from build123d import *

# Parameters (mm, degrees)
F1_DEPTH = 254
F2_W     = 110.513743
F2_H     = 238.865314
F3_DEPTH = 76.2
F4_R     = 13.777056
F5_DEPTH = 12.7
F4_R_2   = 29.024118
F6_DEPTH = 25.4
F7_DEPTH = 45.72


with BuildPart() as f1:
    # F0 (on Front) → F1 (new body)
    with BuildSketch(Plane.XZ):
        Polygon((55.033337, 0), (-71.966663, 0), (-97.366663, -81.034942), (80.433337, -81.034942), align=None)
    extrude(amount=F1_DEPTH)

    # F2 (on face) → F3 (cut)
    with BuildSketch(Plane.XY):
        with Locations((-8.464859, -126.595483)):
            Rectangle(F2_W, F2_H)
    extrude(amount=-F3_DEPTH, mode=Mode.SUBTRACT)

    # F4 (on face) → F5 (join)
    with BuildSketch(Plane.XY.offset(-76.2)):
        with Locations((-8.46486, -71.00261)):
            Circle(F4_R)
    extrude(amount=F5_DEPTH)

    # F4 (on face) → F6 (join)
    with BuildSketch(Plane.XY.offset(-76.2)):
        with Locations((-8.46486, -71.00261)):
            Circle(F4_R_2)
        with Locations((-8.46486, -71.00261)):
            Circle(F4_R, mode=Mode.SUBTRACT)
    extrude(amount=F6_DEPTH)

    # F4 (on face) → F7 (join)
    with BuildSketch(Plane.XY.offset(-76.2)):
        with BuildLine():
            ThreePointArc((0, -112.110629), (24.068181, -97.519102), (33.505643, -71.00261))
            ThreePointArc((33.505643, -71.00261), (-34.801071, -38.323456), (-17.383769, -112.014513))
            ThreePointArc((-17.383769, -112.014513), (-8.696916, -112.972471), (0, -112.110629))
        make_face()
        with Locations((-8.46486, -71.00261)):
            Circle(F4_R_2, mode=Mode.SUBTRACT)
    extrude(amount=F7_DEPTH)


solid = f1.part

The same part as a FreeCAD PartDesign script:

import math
import FreeCAD as App
import Part
import Sketcher
from FreeCAD import Vector
Q = App.Units.Quantity

doc = App.newDocument("Part")
params = doc.addObject("Spreadsheet::Sheet", "Params")
for row, (alias, value) in enumerate([
    ("sketch1_width", "5 in"),
    ("sketch1_width2", "7 in"),
    ("pad1_length", "10 in"),
    ("pocket1_length", "3 in"),
    ("pad2_length", "0.5 in"),
    ("pad3_length", "1 in"),
    ("pad4_length", "1.8 in"),
], start=1):
    params.set(f"A{row}", alias)
    params.set(f"B{row}", "=" + value)
    params.setAlias(f"B{row}", alias)

body = doc.addObject("PartDesign::Body", "Body")

# Sketch on XZ plane
sketch1 = body.newObject("Sketcher::SketchObject", "Sketch")
sketch1.AttachmentSupport = (doc.getObject("XZ_Plane"), [""])
sketch1.MapMode = "FlatFace"
sketch1.addGeometry([
    Part.LineSegment(Vector(55, 0, 0), Vector(-72, 0, 0)),
    Part.LineSegment(Vector(-72, 0, 0), Vector(-97, -81, 0)),
    Part.LineSegment(Vector(-97, -81, 0), Vector(80, -81, 0)),
    Part.LineSegment(Vector(80, -81, 0), Vector(55, 0, 0)),
], False)
sketch1.addConstraint([
    Sketcher.Constraint("Coincident", 0, 2, 1, 1),
    Sketcher.Constraint("Coincident", 1, 2, 2, 1),
    Sketcher.Constraint("Coincident", 2, 2, 3, 1),
    Sketcher.Constraint("Coincident", 3, 2, 0, 1),
    Sketcher.Constraint("Horizontal", 0),
    Sketcher.Constraint("Horizontal", 2),
    Sketcher.Constraint("PointOnObject", 0, 2, -1),
    Sketcher.Constraint("Equal", 1, 3),
    Sketcher.Constraint("DistanceX", 0, 2, 0, 1, Q("5 in")),
    Sketcher.Constraint("DistanceX", 2, 1, 2, 2, Q("7 in")),
    Sketcher.Constraint("DistanceY", 1, 2, -1, 1, 81.034942),
    Sketcher.Constraint("DistanceX", 0, 2, -1, 1, 71.966663),
])
sketch1.setExpression("Constraints[8]", "Params.sketch1_width")
sketch1.setExpression("Constraints[9]", "Params.sketch1_width2")
pad1 = body.newObject("PartDesign::Pad", "Pad")
pad1.Profile = sketch1
pad1.setExpression("Length", "Params.pad1_length")

# Sketch on XY plane
sketch2 = body.newObject("Sketcher::SketchObject", "Sketch001")
sketch2.AttachmentSupport = (doc.getObject("XY_Plane"), [""])
sketch2.MapMode = "FlatFace"
sketch2.addGeometry([
    Part.LineSegment(Vector(-64, -7, 0), Vector(-64, -246, 0)),
    Part.LineSegment(Vector(-64, -246, 0), Vector(47, -246, 0)),
    Part.LineSegment(Vector(47, -246, 0), Vector(47, -7, 0)),
    Part.LineSegment(Vector(47, -7, 0), Vector(-64, -7, 0)),
], False)
sketch2.addConstraint([
    Sketcher.Constraint("Coincident", 0, 2, 1, 1),
    Sketcher.Constraint("Coincident", 1, 2, 2, 1),
    Sketcher.Constraint("Coincident", 2, 2, 3, 1),
    Sketcher.Constraint("Coincident", 3, 2, 0, 1),
    Sketcher.Constraint("Vertical", 0),
    Sketcher.Constraint("Horizontal", 1),
    Sketcher.Constraint("Vertical", 2),
    Sketcher.Constraint("Horizontal", 3),
    Sketcher.Constraint("DistanceX", 1, 1, 1, 2, 110.513743),
    Sketcher.Constraint("DistanceY", 0, 2, 0, 1, 238.865314),
    Sketcher.Constraint("DistanceX", 0, 2, -1, 1, 63.72173),
    Sketcher.Constraint("DistanceY", 0, 2, -1, 1, 246.02814),
])
pocket1 = body.newObject("PartDesign::Pocket", "Pocket")
pocket1.Profile = sketch2
pocket1.setExpression("Length", "Params.pocket1_length")

# Sketch on XY plane
sketch3 = body.newObject("Sketcher::SketchObject", "Sketch002")
sketch3.AttachmentSupport = (doc.getObject("XY_Plane"), [""])
sketch3.MapMode = "FlatFace"
sketch3.AttachmentOffset = App.Placement(Vector(0, 0, -3 * 25.4), App.Rotation())
sketch3.addGeometry(Part.Circle(Vector(-8, -71, 0), Vector(0, 0, 1), 14), False)
sketch3.addConstraint([
    Sketcher.Constraint("Diameter", 0, 27.554112),
    Sketcher.Constraint("DistanceX", 0, 3, -1, 1, 8.46486),
    Sketcher.Constraint("DistanceY", 0, 3, -1, 1, 71.00261),
])
pad2 = body.newObject("PartDesign::Pad", "Pad001")
pad2.Profile = sketch3
pad2.setExpression("Length", "Params.pad2_length")

# Sketch on XY plane
sketch4 = body.newObject("Sketcher::SketchObject", "Sketch003")
sketch4.AttachmentSupport = (doc.getObject("XY_Plane"), [""])
sketch4.MapMode = "FlatFace"
sketch4.AttachmentOffset = App.Placement(Vector(0, 0, -3 * 25.4), App.Rotation())
sketch4.addGeometry([
    Part.Circle(Vector(-8, -71, 0), Vector(0, 0, 1), 29),
    Part.Circle(Vector(-8, -71, 0), Vector(0, 0, 1), 14),
], False)
sketch4.addConstraint([
    Sketcher.Constraint("Coincident", 1, 3, 0, 3),
    Sketcher.Constraint("Diameter", 1, 27.554112),
    Sketcher.Constraint("Diameter", 0, 58.048236),
    Sketcher.Constraint("DistanceX", 0, 3, -1, 1, 8.46486),
    Sketcher.Constraint("DistanceY", 0, 3, -1, 1, 71.00261),
])
pad3 = body.newObject("PartDesign::Pad", "Pad002")
pad3.Profile = sketch4
pad3.setExpression("Length", "Params.pad3_length")

# Sketch on XY plane
sketch5 = body.newObject("Sketcher::SketchObject", "Sketch004")
sketch5.AttachmentSupport = (doc.getObject("XY_Plane"), [""])
sketch5.MapMode = "FlatFace"
sketch5.AttachmentOffset = App.Placement(Vector(0, 0, -3 * 25.4), App.Rotation())
sketch5.addGeometry([
    Part.ArcOfCircle(Part.Circle(Vector(-8, -71, 0), Vector(0, 0, 1), 42), math.radians(-78), math.radians(0)),
    Part.ArcOfCircle(Part.Circle(Vector(-8, -71, 0), Vector(0, 0, 1), 42), math.radians(0), math.radians(258)),
    Part.ArcOfCircle(Part.Circle(Vector(-8, -71, 0), Vector(0, 0, 1), 42), math.radians(-102), math.radians(-78)),
    Part.Circle(Vector(-8, -71, 0), Vector(0, 0, 1), 29),
], False)
sketch5.addConstraint([
    Sketcher.Constraint("Tangent", 0, 2, 1, 1),
    Sketcher.Constraint("Tangent", 1, 2, 2, 1),
    Sketcher.Constraint("Tangent", 2, 2, 0, 1),
    Sketcher.Constraint("Coincident", 3, 3, 0, 3),
    Sketcher.Constraint("PointOnObject", 2, 2, -2),
    Sketcher.Constraint("Horizontal", 3, 3, 0, 2),
    Sketcher.Constraint("Diameter", 3, 58.048236),
    Sketcher.Constraint("Radius", 0, 41.970503),
    Sketcher.Constraint("DistanceY", 2, 3, -1, 1, 71.002599),
    Sketcher.Constraint("DistanceX", 0, 3, -1, 1, 8.46486),
    Sketcher.Constraint("DistanceX", 1, 2, -1, 1, 17.383769),
])
pad4 = body.newObject("PartDesign::Pad", "Pad003")
pad4.Profile = sketch5
pad4.setExpression("Length", "Params.pad4_length")

doc.recompute()
